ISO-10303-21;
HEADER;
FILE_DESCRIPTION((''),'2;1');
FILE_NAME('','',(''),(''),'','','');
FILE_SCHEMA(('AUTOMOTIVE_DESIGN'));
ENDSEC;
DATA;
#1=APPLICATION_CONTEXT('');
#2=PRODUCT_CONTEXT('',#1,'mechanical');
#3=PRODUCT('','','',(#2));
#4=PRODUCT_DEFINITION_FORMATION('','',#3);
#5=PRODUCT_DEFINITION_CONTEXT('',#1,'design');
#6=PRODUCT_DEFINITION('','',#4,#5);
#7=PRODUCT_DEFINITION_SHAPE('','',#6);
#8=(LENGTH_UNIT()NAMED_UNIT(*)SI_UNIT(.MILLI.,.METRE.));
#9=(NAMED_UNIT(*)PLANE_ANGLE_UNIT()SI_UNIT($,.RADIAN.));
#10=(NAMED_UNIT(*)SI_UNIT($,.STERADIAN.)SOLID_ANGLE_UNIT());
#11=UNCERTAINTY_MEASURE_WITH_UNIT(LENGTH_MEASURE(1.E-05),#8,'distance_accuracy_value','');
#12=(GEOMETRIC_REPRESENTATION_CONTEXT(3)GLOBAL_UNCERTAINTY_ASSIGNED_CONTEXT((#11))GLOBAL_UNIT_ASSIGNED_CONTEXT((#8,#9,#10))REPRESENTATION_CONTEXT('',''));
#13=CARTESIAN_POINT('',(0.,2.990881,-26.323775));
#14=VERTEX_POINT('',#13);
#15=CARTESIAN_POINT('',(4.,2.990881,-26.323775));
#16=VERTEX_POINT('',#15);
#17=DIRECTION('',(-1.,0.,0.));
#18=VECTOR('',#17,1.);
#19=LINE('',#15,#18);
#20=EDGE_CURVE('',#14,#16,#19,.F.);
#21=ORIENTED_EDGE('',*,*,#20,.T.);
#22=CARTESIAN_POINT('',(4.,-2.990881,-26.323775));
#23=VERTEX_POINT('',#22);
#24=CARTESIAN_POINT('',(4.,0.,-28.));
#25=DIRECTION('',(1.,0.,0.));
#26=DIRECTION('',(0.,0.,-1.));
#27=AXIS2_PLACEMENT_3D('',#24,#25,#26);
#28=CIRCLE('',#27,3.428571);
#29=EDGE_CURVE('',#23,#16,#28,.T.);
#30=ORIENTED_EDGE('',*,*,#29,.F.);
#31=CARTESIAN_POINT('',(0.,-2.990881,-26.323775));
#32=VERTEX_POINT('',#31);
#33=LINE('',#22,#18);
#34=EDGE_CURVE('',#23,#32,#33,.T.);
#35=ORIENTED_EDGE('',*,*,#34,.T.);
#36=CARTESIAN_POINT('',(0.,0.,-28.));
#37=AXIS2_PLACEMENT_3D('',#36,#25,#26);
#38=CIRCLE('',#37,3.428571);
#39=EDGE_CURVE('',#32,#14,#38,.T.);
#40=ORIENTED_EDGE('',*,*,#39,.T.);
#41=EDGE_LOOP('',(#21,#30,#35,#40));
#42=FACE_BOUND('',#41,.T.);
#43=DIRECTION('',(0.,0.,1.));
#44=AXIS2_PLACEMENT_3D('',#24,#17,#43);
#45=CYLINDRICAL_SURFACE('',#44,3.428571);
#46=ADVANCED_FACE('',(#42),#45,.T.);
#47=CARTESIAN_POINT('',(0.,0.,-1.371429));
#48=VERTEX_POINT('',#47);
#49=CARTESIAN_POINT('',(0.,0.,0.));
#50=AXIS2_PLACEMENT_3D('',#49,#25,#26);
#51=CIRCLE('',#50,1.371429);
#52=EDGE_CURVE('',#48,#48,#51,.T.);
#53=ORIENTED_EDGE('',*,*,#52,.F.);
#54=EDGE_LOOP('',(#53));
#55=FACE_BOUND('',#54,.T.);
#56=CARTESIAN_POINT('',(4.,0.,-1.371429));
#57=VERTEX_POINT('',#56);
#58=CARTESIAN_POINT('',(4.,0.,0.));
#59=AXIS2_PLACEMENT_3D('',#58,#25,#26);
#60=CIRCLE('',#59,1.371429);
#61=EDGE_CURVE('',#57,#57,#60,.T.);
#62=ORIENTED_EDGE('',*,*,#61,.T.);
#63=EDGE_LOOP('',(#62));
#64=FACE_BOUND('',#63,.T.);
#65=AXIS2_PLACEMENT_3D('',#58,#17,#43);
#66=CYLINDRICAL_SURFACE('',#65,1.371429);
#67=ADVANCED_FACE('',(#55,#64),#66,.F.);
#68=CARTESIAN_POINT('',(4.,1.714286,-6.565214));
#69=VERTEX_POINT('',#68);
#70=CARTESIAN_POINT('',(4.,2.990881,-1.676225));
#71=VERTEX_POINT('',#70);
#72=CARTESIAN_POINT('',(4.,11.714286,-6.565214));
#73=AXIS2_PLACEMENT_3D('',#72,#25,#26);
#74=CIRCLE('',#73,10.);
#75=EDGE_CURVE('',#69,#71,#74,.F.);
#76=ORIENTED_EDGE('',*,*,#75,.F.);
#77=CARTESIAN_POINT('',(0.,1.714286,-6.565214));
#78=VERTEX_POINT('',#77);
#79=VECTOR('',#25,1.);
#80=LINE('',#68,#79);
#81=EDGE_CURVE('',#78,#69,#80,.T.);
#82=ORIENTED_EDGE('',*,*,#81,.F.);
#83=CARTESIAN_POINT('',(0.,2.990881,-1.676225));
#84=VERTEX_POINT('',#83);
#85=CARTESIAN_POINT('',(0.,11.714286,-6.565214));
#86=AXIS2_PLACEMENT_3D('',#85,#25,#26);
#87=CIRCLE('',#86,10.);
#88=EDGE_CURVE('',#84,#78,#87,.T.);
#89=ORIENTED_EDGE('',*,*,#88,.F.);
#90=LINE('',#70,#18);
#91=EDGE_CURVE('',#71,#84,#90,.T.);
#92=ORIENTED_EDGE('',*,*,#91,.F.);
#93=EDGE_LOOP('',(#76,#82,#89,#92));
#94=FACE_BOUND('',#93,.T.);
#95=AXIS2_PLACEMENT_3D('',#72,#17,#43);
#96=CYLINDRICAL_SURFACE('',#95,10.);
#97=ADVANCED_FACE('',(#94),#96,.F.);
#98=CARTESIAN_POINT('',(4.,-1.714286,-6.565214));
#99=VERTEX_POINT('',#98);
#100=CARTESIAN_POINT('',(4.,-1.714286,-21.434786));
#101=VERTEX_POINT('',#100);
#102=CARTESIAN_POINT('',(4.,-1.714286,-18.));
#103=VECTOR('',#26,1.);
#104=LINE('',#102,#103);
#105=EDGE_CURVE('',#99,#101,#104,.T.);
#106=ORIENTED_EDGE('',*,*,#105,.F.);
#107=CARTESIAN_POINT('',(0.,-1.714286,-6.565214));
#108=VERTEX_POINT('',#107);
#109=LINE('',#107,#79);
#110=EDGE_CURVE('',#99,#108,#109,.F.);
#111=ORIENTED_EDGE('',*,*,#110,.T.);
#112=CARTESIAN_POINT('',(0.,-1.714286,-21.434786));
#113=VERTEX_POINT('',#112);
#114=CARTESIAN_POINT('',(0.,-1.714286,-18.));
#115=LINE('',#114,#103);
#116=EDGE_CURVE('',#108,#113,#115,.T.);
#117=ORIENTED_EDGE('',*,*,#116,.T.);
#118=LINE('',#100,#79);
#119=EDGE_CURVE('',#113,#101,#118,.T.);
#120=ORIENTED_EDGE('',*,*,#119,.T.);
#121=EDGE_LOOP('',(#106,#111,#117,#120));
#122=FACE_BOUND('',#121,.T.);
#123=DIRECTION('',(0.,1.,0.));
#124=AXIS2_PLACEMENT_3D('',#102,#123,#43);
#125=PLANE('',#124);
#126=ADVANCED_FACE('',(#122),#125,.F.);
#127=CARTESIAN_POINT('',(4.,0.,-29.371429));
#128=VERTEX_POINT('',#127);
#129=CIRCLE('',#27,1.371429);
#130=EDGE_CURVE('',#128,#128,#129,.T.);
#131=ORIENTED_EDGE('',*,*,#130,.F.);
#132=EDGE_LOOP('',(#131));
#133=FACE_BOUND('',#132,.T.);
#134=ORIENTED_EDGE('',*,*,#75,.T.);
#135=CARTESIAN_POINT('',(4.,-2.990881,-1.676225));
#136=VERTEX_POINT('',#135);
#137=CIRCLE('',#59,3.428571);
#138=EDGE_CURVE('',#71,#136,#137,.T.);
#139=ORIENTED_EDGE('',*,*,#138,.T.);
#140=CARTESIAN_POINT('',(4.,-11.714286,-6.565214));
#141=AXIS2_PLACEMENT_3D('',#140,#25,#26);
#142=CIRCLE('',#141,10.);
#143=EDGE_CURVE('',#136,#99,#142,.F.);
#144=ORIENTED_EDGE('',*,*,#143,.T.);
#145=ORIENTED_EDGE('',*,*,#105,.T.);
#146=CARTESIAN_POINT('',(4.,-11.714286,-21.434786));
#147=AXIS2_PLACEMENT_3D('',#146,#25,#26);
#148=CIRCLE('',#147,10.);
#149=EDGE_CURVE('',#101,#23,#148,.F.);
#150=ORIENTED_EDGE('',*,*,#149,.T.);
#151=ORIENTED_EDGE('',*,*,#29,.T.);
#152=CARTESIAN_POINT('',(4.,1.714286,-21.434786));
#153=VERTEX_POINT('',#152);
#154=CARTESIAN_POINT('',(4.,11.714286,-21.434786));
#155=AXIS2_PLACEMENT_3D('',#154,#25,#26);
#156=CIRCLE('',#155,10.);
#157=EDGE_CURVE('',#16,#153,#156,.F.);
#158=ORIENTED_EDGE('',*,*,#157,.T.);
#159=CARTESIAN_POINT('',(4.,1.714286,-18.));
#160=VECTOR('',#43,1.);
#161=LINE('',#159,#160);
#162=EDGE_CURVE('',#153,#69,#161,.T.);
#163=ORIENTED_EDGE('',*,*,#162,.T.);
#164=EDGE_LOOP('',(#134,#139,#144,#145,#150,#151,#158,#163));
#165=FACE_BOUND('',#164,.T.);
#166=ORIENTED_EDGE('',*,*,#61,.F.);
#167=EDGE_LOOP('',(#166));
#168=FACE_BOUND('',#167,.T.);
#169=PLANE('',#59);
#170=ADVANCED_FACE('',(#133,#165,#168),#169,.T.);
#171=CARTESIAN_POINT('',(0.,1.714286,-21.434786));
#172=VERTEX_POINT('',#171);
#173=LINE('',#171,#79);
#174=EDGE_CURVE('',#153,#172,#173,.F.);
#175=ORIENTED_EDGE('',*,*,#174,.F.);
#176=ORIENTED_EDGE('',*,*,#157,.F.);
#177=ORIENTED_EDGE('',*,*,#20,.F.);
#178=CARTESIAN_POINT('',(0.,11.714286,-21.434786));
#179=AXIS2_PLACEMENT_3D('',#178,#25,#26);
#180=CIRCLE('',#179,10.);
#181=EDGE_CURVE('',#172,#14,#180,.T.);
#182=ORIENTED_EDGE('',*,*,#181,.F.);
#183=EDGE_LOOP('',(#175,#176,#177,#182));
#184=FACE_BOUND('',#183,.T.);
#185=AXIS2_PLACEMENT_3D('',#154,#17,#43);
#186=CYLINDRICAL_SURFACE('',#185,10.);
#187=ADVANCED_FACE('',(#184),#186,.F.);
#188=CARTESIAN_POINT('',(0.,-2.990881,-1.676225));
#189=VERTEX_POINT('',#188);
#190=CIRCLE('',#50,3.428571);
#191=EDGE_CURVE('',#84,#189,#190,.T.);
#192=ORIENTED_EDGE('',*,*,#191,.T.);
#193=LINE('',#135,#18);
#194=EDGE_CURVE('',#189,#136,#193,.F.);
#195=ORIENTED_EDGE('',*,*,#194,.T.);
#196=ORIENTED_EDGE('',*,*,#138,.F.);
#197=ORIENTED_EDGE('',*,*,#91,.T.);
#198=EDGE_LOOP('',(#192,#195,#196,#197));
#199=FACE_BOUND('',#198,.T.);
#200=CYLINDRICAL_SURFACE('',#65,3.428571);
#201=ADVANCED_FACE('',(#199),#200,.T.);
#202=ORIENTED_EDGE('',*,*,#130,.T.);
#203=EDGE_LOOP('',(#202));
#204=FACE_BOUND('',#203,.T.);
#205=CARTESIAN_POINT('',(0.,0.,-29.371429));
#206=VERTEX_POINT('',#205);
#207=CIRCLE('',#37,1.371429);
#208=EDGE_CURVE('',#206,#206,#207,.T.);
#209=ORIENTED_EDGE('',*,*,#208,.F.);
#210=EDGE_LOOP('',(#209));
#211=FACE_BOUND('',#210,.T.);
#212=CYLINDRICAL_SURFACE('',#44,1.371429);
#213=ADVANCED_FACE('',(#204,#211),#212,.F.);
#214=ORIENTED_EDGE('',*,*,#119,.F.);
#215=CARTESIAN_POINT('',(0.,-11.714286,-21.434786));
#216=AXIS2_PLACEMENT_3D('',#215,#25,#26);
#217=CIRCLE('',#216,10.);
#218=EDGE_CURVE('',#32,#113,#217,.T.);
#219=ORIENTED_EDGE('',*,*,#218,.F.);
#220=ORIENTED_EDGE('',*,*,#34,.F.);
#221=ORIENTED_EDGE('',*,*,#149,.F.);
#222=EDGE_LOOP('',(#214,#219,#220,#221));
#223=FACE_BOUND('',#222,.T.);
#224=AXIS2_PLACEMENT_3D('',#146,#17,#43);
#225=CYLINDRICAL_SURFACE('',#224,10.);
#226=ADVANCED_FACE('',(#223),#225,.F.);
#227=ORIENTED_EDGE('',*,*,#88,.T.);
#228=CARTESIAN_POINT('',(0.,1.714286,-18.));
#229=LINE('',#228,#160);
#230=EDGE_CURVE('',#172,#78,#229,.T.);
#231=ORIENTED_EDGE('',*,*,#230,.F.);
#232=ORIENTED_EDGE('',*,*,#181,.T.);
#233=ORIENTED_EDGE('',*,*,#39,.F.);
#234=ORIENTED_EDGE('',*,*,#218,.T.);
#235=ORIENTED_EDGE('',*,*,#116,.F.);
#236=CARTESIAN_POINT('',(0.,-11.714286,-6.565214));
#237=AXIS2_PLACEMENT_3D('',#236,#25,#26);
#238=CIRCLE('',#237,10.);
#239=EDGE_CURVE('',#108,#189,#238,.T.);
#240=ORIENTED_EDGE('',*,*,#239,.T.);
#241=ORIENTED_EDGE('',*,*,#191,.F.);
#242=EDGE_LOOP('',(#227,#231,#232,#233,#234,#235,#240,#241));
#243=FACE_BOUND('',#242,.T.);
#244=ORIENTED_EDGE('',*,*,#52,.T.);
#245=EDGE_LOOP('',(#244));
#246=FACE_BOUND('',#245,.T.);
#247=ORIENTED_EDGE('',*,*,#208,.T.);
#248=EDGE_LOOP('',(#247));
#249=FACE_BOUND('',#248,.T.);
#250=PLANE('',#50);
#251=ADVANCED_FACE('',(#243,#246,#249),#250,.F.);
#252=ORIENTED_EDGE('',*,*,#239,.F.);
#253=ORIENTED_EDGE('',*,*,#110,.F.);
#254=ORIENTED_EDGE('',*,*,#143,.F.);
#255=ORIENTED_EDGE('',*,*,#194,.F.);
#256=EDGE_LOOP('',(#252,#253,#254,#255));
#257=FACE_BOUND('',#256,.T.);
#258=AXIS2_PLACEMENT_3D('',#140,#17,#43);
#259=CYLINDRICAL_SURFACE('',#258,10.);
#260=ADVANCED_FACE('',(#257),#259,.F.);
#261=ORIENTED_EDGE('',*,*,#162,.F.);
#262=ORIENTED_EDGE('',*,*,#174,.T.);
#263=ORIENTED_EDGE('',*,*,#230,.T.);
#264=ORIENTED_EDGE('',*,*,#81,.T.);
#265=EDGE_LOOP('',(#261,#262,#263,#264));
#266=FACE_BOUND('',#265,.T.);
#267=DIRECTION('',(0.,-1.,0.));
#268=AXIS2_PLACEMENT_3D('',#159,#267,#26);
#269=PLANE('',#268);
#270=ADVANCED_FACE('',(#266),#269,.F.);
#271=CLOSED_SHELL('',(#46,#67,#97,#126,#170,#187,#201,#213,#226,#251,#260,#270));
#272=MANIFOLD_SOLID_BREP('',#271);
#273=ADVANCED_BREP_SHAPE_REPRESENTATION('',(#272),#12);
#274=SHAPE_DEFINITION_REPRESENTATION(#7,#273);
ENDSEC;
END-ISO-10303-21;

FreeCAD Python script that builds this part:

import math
import FreeCAD as App
import Part
import Sketcher
from FreeCAD import Vector


def edges_at(feature, points):
    """Names of the edges that pass closest to the given points."""
    edges = feature.Shape.Edges
    near = lambda p: min(range(len(edges)), key=lambda i: edges[i].distToShape(Part.Vertex(*p))[0])
    return sorted({f"Edge{near(p) + 1}" for p in points})

doc = App.newDocument("Part")
params = doc.addObject("Spreadsheet::Sheet", "Params")
for row, (alias, value) in enumerate([
    ("pad1_length", "4 mm"),
    ("fillet_radius", "10 mm"),
], start=1):
    params.set(f"A{row}", alias)
    params.set(f"B{row}", "=" + value)
    params.setAlias(f"B{row}", alias)

body = doc.addObject("PartDesign::Body", "Body")

sketch1 = doc.addObject("Sketcher::SketchObject", "Sketch")
body.addObject(sketch1)
sketch1.AttachmentSupport = (doc.YZ_Plane, [""])
sketch1.MapMode = "FlatFace"
sketch1.addGeometry(Part.ArcOfCircle(Part.Circle(Vector(0, -28, 0), Vector(0, 0, 1), 3.428571), math.radians(120), math.radians(420)), False)
sketch1.addGeometry(Part.LineSegment(Vector(1.714286, -25.03077, 0), Vector(1.714286, -2.96923, 0)), False)
sketch1.addGeometry(Part.ArcOfCircle(Part.Circle(Vector(0, 0, 0), Vector(0, 0, 1), 3.428571), math.radians(-60), math.radians(240)), False)
sketch1.addGeometry(Part.LineSegment(Vector(-1.714286, -2.96923, 0), Vector(-1.714286, -25.03077, 0)), False)
sketch1.addGeometry(Part.Circle(Vector(0, -28, 0), Vector(0, 0, 1), 1.371429), False)
sketch1.addGeometry(Part.Circle(Vector(0, 0, 0), Vector(0, 0, 1), 1.371429), False)
sketch1.addConstraint(Sketcher.Constraint("Coincident", 0, 2, 1, 1))
sketch1.addConstraint(Sketcher.Constraint("Coincident", 1, 2, 2, 1))
sketch1.addConstraint(Sketcher.Constraint("Coincident", 2, 2, 3, 1))
sketch1.addConstraint(Sketcher.Constraint("Coincident", 3, 2, 0, 1))
sketch1.addConstraint(Sketcher.Constraint("Vertical", 1))
sketch1.addConstraint(Sketcher.Constraint("Vertical", 3))
sketch1.addConstraint(Sketcher.Constraint("Coincident", 2, 3, -1, 1))
sketch1.addConstraint(Sketcher.Constraint("Coincident", 5, 3, -1, 1))
sketch1.addConstraint(Sketcher.Constraint("Coincident", 4, 3, 0, 3))
sketch1.addConstraint(Sketcher.Constraint("Equal", 0, 2))
sketch1.addConstraint(Sketcher.Constraint("Equal", 4, 5))
sketch1.addConstraint(Sketcher.Constraint("Symmetric", 0, 2, 3, 2, -2))
sketch1.addConstraint(Sketcher.Constraint("DistanceY", 0, 3, -1, 1, 28.0))
sketch1.addConstraint(Sketcher.Constraint("Radius", 0, 3.428571))
sketch1.addConstraint(Sketcher.Constraint("Diameter", 4, 2.742857))
sketch1.addConstraint(Sketcher.Constraint("DistanceY", 1, 1, 1, 2, 22.06154))
pad1 = doc.addObject("PartDesign::Pad", "Pad")
body.addObject(pad1)
pad1.Profile = sketch1
pad1.setExpression("Length", "Params.pad1_length")
doc.recompute()

fillet = doc.addObject("PartDesign::Fillet", "Fillet")
body.addObject(fillet)
fillet.Base = (pad1, edges_at(pad1, [
    (2, 1.714, -25.031),
    (2, -1.714, -25.031),
    (2, -1.714, -2.969),
    (2, 1.714, -2.969),
]))
fillet.setExpression("Radius", "Params.fillet_radius")

doc.recompute()
